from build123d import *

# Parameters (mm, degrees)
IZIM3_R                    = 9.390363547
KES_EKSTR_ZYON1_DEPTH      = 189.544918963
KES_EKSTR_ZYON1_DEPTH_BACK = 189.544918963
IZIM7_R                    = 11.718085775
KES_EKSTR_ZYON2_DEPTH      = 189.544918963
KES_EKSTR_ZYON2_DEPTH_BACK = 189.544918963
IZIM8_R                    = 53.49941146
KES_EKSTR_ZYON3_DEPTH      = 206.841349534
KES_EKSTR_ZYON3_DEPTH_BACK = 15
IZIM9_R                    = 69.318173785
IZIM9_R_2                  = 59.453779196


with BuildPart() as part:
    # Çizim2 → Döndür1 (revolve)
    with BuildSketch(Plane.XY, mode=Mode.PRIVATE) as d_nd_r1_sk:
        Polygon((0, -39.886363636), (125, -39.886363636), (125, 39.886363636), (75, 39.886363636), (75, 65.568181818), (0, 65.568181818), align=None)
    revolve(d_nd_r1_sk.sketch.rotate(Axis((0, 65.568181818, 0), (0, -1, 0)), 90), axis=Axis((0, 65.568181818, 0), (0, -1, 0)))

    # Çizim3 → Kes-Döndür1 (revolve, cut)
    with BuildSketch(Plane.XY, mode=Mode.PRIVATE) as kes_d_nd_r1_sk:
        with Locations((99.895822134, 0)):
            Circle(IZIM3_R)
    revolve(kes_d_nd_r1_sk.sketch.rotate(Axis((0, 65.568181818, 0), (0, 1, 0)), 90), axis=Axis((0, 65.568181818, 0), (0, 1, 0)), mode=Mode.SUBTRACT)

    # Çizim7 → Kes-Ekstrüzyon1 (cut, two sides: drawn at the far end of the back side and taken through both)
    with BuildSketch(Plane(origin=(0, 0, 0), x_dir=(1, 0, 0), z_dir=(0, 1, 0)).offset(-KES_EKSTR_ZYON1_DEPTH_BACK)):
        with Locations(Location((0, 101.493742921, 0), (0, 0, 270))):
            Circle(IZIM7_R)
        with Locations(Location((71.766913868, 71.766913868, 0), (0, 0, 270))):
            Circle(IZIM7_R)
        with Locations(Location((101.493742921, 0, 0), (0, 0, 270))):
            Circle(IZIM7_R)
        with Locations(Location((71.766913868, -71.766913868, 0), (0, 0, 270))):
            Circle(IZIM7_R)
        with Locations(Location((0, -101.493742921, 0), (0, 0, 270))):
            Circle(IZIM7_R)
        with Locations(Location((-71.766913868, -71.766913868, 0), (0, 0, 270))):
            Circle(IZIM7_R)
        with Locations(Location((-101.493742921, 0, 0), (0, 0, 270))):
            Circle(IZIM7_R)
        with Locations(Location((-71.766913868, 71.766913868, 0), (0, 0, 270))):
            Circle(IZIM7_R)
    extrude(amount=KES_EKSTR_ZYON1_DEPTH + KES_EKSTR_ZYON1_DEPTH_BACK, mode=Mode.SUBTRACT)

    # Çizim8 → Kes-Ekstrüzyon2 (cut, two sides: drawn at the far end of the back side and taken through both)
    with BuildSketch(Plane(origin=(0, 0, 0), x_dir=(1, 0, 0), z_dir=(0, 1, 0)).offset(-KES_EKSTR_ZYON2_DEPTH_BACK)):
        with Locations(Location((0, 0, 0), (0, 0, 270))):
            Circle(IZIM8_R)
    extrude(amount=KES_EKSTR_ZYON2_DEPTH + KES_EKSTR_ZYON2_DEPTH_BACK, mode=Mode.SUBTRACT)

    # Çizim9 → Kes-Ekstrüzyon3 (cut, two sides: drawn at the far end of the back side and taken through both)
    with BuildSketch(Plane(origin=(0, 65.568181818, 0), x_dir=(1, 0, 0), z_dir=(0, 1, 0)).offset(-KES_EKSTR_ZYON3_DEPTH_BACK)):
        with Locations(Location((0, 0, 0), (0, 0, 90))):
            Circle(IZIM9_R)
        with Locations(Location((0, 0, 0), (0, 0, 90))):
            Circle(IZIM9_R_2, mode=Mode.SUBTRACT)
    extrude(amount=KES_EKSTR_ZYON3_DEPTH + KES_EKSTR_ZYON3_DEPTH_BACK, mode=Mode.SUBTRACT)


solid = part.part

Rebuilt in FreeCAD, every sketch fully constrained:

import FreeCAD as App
import Part
import Sketcher

V = App.Vector
Q = App.Units.Quantity

doc = App.newDocument("Part")
body = doc.addObject("PartDesign::Body", "Body")

# Sketch on XY plane
sketch1 = body.newObject("Sketcher::SketchObject", "Sketch")
sketch1.AttachmentSupport = (doc.getObject("XY_Plane"), [""])
sketch1.MapMode = "FlatFace"
sketch1.addGeometry([
    Part.LineSegment(V(0, -40, 0), V(125, -40, 0)),  # 0
    Part.LineSegment(V(125, -40, 0), V(125, 40, 0)),  # 1
    Part.LineSegment(V(125, 40, 0), V(75, 40, 0)),  # 2
    Part.LineSegment(V(75, 40, 0), V(75, 66, 0)),  # 3
    Part.LineSegment(V(75, 66, 0), V(0, 66, 0)),  # 4
    Part.LineSegment(V(0, 66, 0), V(0, -40, 0)),  # 5
], False)
sketch1.addConstraint([
    Sketcher.Constraint("Coincident", 0, 2, 1, 1),
    Sketcher.Constraint("Coincident", 1, 2, 2, 1),
    Sketcher.Constraint("Coincident", 2, 2, 3, 1),
    Sketcher.Constraint("Coincident", 3, 2, 4, 1),
    Sketcher.Constraint("Coincident", 4, 2, 5, 1),
    Sketcher.Constraint("Coincident", 5, 2, 0, 1),
    Sketcher.Constraint("Horizontal", 0),
    Sketcher.Constraint("Vertical", 1),
    Sketcher.Constraint("Horizontal", 2),
    Sketcher.Constraint("Vertical", 3),
    Sketcher.Constraint("Horizontal", 4),
    Sketcher.Constraint("Vertical", 5),
    Sketcher.Constraint("PointOnObject", 4, 2, -2),
    Sketcher.Constraint("DistanceX", 0, 1, 0, 2, Q("125 mm")),
    Sketcher.Constraint("DistanceX", 2, 2, 2, 1, Q("50 mm")),
    Sketcher.Constraint("DistanceY", 3, 1, 3, 2, Q("25.681818 mm")),
    Sketcher.Constraint("DistanceY", 1, 1, 1, 2, Q("79.772727 mm")),
    Sketcher.Constraint("DistanceY", -1, 1, 3, 2, Q("65.568182 mm")),
])
revolution = body.newObject("PartDesign::Revolution", "Revolution")
revolution.Profile = sketch1
revolution.ReferenceAxis = (sketch1, ["V_Axis"])
revolution.Angle = 360

# Sketch on XY plane
sketch2 = body.newObject("Sketcher::SketchObject", "Sketch001")
sketch2.AttachmentSupport = (doc.getObject("XY_Plane"), [""])
sketch2.MapMode = "FlatFace"
sketch2.addGeometry(Part.Circle(V(100, 0, 0), V(0, 0, 1), 9), False)
sketch2.addConstraint([
    Sketcher.Constraint("PointOnObject", 0, 3, -1),
    Sketcher.Constraint("Diameter", 0, Q("18.780727 mm")),
    Sketcher.Constraint("DistanceX", -1, 1, 0, 3, Q("99.895822 mm")),
])
groove = body.newObject("PartDesign::Groove", "Groove")
groove.Profile = sketch2
groove.ReferenceAxis = (sketch2, ["V_Axis"])
groove.Angle = 360

# Sketch on XZ plane
sketch3 = body.newObject("Sketcher::SketchObject", "Sketch002")
sketch3.AttachmentSupport = (doc.getObject("XZ_Plane"), [""])
sketch3.MapMode = "FlatFace"
sketch3.addGeometry([
    Part.Circle(V(0, -101, 0), V(0, 0, 1), 12),  # 0
    Part.Circle(V(72, -72, 0), V(0, 0, 1), 12),  # 1
    Part.Circle(V(101, 0, 0), V(0, 0, 1), 12),  # 2
    Part.Circle(V(72, 72, 0), V(0, 0, 1), 12),  # 3
    Part.Circle(V(0, 101, 0), V(0, 0, 1), 12),  # 4
    Part.Circle(V(-72, 72, 0), V(0, 0, 1), 12),  # 5
    Part.Circle(V(-101, 0, 0), V(0, 0, 1), 12),  # 6
    Part.Circle(V(-72, -72, 0), V(0, 0, 1), 12),  # 7
], False)
sketch3.addConstraint([
    Sketcher.Constraint("Equal", 0, 1),
    Sketcher.Constraint("Equal", 1, 2),
    Sketcher.Constraint("Equal", 2, 3),
    Sketcher.Constraint("Equal", 3, 4),
    Sketcher.Constraint("Equal", 4, 5),
    Sketcher.Constraint("Equal", 5, 6),
    Sketcher.Constraint("Equal", 6, 7),
    Sketcher.Constraint("Symmetric", 0, 3, 4, 3, -1, 1),
    Sketcher.Constraint("Symmetric", 1, 3, 5, 3, -1, 1),
    Sketcher.Constraint("Symmetric", 2, 3, 6, 3, -1, 1),
    Sketcher.Constraint("Symmetric", 3, 3, 7, 3, -1, 1),
    Sketcher.Constraint("Symmetric", 3, 3, 5, 3, -2),
    Sketcher.Constraint("PointOnObject", 0, 3, -2),
    Sketcher.Constraint("PointOnObject", 2, 3, -1),
    Sketcher.Constraint("Diameter", 0, Q("23.436172 mm")),
    Sketcher.Constraint("DistanceY", 0, 3, 1, 3, Q("29.726829 mm")),
    Sketcher.Constraint("DistanceX", 1, 3, 2, 3, Q("29.726829 mm")),
    Sketcher.Constraint("DistanceY", 0, 3, -1, 1, Q("101.493743 mm")),
    Sketcher.Constraint("DistanceX", -1, 1, 1, 3, Q("71.766914 mm")),
])
pocket1 = body.newObject("PartDesign::Pocket", "Pocket")
pocket1.Profile = sketch3
pocket1.Type = "ThroughAll"
pocket1.Midplane = True

# Sketch on XZ plane
sketch4 = body.newObject("Sketcher::SketchObject", "Sketch003")
sketch4.AttachmentSupport = (doc.getObject("XZ_Plane"), [""])
sketch4.MapMode = "FlatFace"
sketch4.addGeometry(Part.Circle(V(0, 0, 0), V(0, 0, 1), 53), False)
sketch4.addConstraint([
    Sketcher.Constraint("Coincident", 0, 3, -1, 1),
    Sketcher.Constraint("Diameter", 0, Q("106.998823 mm")),
])
pocket2 = body.newObject("PartDesign::Pocket", "Pocket001")
pocket2.Profile = sketch4
pocket2.Type = "ThroughAll"
pocket2.Midplane = True

# Sketch on XZ plane
sketch5 = body.newObject("Sketcher::SketchObject", "Sketch004")
sketch5.AttachmentSupport = (doc.getObject("XZ_Plane"), [""])
sketch5.MapMode = "FlatFace"
sketch5.AttachmentOffset = App.Placement(V(0, 0, -65.568182), App.Rotation())
sketch5.addGeometry([
    Part.Circle(V(0, 0, 0), V(0, 0, 1), 69),
    Part.Circle(V(0, 0, 0), V(0, 0, 1), 59),
], False)
sketch5.addConstraint([
    Sketcher.Constraint("Coincident", 0, 3, -1, 1),
    Sketcher.Constraint("Coincident", 1, 3, -1, 1),
    Sketcher.Constraint("Diameter", 1, Q("118.907558 mm")),
    Sketcher.Constraint("Diameter", 0, Q("138.636348 mm")),
])
pocket3 = body.newObject("PartDesign::Pocket", "Pocket002")
pocket3.Profile = sketch5
pocket3.Type = "TwoLengths"
pocket3.Length = 206.84135
pocket3.Length2 = 15

doc.recompute()
